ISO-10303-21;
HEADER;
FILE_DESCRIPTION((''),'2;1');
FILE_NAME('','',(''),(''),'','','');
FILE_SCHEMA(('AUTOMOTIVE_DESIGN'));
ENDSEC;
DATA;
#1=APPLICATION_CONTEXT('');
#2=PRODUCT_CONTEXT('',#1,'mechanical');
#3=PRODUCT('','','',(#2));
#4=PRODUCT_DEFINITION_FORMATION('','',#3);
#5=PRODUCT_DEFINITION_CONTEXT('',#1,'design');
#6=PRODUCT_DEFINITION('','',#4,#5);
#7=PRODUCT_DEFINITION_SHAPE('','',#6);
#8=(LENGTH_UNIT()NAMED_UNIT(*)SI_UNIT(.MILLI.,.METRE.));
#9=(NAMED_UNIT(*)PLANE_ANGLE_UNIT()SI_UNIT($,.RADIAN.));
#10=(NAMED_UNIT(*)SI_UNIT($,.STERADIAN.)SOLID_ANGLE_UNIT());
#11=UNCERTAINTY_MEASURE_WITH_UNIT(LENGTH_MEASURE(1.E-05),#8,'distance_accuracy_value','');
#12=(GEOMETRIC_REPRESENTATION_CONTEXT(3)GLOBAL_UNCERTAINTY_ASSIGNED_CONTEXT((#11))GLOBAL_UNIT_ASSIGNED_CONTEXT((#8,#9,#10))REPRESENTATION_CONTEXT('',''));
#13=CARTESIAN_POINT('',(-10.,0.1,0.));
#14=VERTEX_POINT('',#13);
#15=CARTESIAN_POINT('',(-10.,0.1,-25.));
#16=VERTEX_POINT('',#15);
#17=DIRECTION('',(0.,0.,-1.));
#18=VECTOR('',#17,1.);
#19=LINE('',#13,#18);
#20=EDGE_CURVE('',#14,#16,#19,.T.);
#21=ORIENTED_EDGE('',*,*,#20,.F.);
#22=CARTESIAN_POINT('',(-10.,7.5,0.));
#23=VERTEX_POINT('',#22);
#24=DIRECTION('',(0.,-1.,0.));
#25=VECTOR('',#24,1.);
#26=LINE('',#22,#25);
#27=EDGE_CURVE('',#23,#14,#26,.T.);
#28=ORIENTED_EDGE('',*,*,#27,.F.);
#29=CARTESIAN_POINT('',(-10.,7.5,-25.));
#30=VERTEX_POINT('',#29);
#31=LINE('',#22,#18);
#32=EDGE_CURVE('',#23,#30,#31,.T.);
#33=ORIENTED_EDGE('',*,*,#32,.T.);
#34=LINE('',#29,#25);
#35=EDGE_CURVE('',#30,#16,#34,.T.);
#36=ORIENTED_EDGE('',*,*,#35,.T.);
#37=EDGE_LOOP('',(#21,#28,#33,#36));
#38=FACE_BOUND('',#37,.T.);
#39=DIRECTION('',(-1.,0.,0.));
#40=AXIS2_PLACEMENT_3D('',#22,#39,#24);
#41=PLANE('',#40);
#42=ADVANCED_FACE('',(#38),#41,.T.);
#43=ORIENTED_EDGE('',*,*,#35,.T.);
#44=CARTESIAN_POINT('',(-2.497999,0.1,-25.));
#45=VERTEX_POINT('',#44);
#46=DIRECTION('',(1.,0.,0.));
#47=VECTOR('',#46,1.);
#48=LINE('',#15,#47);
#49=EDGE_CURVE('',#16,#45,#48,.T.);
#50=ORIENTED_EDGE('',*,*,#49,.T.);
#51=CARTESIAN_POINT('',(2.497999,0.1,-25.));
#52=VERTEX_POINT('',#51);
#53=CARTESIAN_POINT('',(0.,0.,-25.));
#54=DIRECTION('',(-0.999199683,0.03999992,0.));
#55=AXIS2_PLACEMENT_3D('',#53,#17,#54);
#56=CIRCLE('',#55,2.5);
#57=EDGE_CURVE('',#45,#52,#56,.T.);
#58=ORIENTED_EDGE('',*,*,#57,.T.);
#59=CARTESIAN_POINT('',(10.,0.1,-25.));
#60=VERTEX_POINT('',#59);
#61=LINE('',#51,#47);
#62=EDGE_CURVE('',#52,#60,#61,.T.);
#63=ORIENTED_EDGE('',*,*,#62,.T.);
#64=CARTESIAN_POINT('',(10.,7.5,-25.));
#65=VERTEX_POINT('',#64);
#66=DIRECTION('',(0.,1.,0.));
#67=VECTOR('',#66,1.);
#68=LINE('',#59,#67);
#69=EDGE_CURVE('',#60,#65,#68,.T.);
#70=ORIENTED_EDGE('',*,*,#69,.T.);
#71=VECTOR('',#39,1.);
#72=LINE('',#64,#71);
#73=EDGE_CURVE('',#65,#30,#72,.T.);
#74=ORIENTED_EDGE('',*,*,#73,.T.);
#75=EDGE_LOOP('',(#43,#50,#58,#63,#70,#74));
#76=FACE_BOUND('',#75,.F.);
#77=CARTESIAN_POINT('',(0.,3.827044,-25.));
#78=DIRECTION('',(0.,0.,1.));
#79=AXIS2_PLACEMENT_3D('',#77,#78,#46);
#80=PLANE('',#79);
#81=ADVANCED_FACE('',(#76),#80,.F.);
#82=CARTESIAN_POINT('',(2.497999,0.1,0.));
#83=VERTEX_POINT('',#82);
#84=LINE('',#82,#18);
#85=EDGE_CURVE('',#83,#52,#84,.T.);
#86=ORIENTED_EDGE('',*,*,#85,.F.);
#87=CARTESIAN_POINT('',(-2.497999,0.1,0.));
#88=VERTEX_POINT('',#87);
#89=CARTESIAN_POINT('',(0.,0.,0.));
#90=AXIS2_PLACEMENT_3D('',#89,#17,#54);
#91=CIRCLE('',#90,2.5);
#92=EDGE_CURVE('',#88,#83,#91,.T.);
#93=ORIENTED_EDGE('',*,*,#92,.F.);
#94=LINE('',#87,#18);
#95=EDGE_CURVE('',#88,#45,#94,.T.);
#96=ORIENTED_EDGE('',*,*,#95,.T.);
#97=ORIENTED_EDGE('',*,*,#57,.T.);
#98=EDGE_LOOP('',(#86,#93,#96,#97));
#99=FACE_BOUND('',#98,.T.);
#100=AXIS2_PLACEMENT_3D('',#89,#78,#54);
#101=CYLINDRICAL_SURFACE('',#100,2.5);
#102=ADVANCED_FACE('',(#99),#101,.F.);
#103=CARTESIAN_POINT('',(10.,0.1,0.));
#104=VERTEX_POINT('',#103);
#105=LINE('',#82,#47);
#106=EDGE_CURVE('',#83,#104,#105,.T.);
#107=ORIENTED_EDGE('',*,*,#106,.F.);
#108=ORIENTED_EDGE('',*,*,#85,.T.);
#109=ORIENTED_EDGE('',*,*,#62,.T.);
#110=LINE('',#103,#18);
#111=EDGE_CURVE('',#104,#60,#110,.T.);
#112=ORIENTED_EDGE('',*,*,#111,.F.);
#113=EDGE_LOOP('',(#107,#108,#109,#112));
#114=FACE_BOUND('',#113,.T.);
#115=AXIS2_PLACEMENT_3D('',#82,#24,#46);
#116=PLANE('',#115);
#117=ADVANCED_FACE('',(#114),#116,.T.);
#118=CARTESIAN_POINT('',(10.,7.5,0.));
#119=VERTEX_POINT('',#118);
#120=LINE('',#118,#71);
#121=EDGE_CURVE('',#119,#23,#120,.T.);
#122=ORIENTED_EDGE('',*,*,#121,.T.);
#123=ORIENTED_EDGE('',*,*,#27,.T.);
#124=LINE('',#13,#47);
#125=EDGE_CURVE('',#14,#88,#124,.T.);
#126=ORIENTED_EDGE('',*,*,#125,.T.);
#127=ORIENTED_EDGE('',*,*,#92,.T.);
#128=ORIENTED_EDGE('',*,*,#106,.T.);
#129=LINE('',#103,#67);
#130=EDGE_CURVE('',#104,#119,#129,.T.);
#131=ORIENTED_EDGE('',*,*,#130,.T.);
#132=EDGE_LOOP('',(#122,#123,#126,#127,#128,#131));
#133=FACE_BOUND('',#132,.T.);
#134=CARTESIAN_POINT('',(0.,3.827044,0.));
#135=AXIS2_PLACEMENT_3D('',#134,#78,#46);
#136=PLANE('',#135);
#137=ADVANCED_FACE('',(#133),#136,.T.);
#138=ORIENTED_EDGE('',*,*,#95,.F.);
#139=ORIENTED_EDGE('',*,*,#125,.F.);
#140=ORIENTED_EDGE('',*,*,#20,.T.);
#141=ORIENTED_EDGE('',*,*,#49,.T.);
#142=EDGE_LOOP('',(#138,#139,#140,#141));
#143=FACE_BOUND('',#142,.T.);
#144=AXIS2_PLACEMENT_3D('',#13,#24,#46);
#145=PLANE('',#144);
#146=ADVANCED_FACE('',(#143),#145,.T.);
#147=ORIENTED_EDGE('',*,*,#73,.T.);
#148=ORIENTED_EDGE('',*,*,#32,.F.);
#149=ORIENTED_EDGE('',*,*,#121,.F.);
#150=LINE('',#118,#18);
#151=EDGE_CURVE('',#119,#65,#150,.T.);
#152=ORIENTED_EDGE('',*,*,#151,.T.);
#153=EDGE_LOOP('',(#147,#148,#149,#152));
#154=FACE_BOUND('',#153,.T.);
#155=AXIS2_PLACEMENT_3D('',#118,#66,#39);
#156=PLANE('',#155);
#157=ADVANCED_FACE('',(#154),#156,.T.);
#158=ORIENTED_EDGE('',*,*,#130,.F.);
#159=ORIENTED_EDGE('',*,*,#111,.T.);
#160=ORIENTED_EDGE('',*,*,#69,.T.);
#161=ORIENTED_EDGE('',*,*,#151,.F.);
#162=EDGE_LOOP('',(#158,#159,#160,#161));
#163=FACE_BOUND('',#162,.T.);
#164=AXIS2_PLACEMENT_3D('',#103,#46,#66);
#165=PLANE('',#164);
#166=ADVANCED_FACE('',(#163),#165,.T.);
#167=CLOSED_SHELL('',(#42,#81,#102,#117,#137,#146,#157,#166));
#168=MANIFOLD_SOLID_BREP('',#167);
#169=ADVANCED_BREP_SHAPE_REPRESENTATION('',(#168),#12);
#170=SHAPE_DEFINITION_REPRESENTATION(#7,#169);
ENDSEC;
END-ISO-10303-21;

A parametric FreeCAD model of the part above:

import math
import FreeCAD as App
import Part
import Sketcher

doc = App.newDocument("Part")
body = doc.addObject("PartDesign::Body", "Body")

# Sketch on XY plane
sketch1 = body.newObject("Sketcher::SketchObject", "Sketch")
sketch1.AttachmentSupport = (doc.getObject("XY_Plane"), [""])
sketch1.MapMode = "FlatFace"
sketch1.addGeometry([
    Part.LineSegment(App.Vector(10, 0.1, 0), App.Vector(10, 7.5, 0)),  # 0
    Part.LineSegment(App.Vector(10, 7.5, 0), App.Vector(-10, 7.5, 0)),  # 1
    Part.LineSegment(App.Vector(-10, 7.5, 0), App.Vector(-10, 0.1, 0)),  # 2
    Part.LineSegment(App.Vector(-10, 0.1, 0), App.Vector(-2.5, 0.1, 0)),  # 3
    Part.ArcOfCircle(Part.Circle(App.Vector(0, 0, 0), App.Vector(0, 0, 1), 2.5), math.radians(2), math.radians(178)),  # 4
    Part.LineSegment(App.Vector(2.5, 0.1, 0), App.Vector(10, 0.1, 0)),  # 5
], False)
sketch1.addConstraint([
    Sketcher.Constraint("Coincident", 0, 2, 1, 1),
    Sketcher.Constraint("Coincident", 1, 2, 2, 1),
    Sketcher.Constraint("Coincident", 2, 2, 3, 1),
    Sketcher.Constraint("Coincident", 3, 2, 4, 2),
    Sketcher.Constraint("Coincident", 4, 1, 5, 1),
    Sketcher.Constraint("Coincident", 5, 2, 0, 1),
    Sketcher.Constraint("Vertical", 0),
    Sketcher.Constraint("Horizontal", 1),
    Sketcher.Constraint("Vertical", 2),
    Sketcher.Constraint("Horizontal", 3),
    Sketcher.Constraint("Horizontal", 5),
    Sketcher.Constraint("Coincident", 4, 3, -1, 1),
    Sketcher.Constraint("Symmetric", 2, 2, 5, 2, -2),
    Sketcher.Constraint("Radius", 4, 2.5),
    Sketcher.Constraint("DistanceX", 1, 2, 1, 1, 20.0),
    Sketcher.Constraint("DistanceY", 0, 1, 0, 2, 7.4),
    Sketcher.Constraint("DistanceY", -1, 1, 0, 2, 7.5),
])
pad1 = body.newObject("PartDesign::Pad", "Pad")
pad1.Profile = sketch1
pad1.Length = 25
pad1.Reversed = True

doc.recompute()
